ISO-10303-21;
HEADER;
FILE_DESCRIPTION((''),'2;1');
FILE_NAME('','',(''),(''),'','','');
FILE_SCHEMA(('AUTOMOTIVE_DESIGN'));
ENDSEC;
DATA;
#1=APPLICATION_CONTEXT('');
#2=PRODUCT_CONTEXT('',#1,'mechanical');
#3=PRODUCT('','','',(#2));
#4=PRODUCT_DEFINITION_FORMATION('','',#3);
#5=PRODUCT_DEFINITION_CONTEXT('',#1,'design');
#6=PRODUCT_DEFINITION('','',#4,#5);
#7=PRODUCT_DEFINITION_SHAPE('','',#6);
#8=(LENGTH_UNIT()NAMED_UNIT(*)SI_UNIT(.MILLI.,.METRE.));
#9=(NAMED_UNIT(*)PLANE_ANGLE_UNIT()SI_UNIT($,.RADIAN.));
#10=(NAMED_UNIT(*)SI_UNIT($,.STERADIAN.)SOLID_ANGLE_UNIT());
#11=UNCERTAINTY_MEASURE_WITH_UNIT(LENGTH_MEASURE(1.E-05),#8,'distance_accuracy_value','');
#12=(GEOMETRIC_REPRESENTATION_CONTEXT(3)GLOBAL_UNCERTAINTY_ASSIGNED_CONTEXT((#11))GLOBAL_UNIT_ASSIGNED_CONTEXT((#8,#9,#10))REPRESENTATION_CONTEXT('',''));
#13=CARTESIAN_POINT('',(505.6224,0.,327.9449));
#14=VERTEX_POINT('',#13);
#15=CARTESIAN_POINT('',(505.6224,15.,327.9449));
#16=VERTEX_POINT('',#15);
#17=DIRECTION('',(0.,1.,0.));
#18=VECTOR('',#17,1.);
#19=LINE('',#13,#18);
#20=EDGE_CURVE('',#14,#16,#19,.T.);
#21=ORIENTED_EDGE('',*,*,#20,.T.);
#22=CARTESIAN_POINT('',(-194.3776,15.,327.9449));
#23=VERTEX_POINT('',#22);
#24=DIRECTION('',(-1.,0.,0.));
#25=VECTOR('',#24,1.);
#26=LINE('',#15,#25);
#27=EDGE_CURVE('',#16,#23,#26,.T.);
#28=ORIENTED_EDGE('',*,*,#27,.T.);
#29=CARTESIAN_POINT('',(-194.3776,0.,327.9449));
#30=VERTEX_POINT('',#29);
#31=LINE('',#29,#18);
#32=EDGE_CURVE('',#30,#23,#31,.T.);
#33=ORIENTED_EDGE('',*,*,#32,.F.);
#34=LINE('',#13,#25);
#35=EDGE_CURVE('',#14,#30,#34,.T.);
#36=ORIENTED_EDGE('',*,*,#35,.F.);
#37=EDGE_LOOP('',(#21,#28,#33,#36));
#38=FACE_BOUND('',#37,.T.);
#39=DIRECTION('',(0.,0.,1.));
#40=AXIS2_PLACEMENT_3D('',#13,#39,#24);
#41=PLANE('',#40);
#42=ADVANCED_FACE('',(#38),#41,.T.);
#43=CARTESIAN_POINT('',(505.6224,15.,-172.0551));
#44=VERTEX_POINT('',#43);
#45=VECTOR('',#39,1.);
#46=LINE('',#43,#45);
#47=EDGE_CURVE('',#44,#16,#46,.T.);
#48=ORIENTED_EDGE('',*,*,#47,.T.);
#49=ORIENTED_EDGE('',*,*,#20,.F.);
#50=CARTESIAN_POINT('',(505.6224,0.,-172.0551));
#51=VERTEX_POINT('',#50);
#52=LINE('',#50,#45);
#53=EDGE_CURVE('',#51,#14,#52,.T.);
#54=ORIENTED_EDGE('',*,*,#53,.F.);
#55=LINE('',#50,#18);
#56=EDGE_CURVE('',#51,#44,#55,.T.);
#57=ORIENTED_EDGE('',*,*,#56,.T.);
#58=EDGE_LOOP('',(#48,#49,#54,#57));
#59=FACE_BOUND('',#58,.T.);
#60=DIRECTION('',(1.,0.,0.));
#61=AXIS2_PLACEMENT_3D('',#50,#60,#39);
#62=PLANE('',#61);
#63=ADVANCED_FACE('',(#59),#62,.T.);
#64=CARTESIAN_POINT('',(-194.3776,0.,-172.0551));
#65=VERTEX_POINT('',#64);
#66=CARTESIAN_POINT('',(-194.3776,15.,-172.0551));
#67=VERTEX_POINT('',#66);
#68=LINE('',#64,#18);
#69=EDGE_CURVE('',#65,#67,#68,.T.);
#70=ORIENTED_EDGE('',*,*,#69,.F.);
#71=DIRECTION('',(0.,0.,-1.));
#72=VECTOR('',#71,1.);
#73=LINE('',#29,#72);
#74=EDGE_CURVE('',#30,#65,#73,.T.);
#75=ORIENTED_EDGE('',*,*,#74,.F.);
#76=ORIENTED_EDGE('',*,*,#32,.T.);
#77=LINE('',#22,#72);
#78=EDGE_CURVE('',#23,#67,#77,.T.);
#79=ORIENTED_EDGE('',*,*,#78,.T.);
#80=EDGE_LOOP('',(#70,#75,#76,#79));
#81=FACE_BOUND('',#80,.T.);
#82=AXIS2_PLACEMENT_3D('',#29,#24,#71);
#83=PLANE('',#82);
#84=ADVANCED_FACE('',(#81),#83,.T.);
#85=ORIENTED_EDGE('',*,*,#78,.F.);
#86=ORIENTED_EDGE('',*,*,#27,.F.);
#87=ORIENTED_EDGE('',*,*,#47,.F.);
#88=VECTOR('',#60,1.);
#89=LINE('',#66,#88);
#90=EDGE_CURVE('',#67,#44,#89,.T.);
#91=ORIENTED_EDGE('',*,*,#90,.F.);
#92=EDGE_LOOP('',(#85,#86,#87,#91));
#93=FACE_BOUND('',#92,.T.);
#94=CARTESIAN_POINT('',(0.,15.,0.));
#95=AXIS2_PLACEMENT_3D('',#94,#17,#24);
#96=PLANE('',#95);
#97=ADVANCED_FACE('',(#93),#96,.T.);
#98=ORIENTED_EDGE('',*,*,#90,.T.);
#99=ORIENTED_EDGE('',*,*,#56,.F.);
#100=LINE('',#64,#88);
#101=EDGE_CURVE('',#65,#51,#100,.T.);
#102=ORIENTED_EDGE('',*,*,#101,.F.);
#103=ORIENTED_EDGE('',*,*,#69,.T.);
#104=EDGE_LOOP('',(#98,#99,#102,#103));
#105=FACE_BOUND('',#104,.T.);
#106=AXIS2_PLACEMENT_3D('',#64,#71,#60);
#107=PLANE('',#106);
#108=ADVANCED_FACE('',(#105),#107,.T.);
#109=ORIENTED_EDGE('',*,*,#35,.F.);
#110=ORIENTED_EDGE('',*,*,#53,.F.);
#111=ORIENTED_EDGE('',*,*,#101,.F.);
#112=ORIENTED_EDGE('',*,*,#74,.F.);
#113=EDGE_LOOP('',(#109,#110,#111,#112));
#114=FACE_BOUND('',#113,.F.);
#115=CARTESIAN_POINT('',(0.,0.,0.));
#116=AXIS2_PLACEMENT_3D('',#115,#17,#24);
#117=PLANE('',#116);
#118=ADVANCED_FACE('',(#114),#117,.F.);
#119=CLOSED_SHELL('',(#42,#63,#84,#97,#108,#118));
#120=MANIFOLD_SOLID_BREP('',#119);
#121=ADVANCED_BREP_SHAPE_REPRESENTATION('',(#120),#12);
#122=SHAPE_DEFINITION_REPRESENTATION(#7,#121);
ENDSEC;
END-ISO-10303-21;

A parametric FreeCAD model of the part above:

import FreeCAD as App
import Part
import Sketcher

V = App.Vector


def add_polygon(sketch, points):
    """Adds a closed chain of lines whose ends are joined by coincident constraints."""
    first, n = sketch.GeometryCount, len(points)
    for a, b in zip(points, points[1:] + points[:1]):
        sketch.addGeometry(Part.LineSegment(App.Vector(*a, 0), App.Vector(*b, 0)), False)
    for i in range(n):
        sketch.addConstraint(Sketcher.Constraint("Coincident", first + i, 2, first + (i + 1) % n, 1))

doc = App.newDocument("Part")
body = doc.addObject("PartDesign::Body", "Body")

# Sketch on XZ plane
sketch1 = body.newObject("Sketcher::SketchObject", "Sketch")
sketch1.AttachmentSupport = (doc.getObject("XZ_Plane"), [""])
sketch1.MapMode = "FlatFace"
add_polygon(sketch1, [(505.6224, -172.0551), (-194.3776, -172.0551), (-194.3776, 327.9449), (505.6224, 327.9449)])  # lines 0-3
sketch1.addConstraint(Sketcher.Constraint("Horizontal", 0))
sketch1.addConstraint(Sketcher.Constraint("Vertical", 1))
sketch1.addConstraint(Sketcher.Constraint("Horizontal", 2))
sketch1.addConstraint(Sketcher.Constraint("Vertical", 3))
sketch1.addConstraint(Sketcher.Constraint("DistanceX", 0, 2, 0, 1, 700.0))
sketch1.addConstraint(Sketcher.Constraint("DistanceY", 1, 1, 1, 2, 500.0))
sketch1.addConstraint(Sketcher.Constraint("DistanceY", 0, 2, -1, 1, 172.055))
sketch1.addConstraint(Sketcher.Constraint("DistanceX", 0, 2, -1, 1, 194.3776))
pad1 = body.newObject("PartDesign::Pad", "Pad")
pad1.Profile = sketch1
pad1.Length = 15
pad1.Reversed = True

doc.recompute()
